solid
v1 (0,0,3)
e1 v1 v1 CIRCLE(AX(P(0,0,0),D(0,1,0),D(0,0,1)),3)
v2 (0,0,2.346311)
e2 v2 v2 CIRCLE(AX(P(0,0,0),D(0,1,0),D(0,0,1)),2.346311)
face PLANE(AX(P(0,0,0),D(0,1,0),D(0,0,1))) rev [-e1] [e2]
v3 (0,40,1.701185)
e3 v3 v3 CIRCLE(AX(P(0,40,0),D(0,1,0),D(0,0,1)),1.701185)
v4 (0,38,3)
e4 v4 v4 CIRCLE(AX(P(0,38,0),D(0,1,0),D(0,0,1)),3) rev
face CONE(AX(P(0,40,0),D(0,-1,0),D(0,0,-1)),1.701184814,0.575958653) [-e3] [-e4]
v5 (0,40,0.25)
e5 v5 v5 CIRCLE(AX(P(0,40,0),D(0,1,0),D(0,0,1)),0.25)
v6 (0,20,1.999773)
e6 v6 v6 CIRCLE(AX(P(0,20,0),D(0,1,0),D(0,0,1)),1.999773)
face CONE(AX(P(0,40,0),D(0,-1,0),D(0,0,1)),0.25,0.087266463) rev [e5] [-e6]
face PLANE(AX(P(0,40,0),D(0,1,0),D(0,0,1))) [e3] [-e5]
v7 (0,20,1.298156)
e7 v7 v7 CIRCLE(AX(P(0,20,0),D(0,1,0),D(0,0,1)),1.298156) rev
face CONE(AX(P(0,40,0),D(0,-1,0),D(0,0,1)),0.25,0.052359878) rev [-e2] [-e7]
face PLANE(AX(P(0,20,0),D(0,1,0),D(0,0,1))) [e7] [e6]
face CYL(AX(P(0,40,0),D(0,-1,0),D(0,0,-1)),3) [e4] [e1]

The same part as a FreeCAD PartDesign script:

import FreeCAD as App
import Part
import Sketcher

V = App.Vector


def edges_at(feature, points):
    """Names of the edges that pass closest to the given points."""
    edges = feature.Shape.Edges
    near = lambda p: min(range(len(edges)), key=lambda i: edges[i].distToShape(Part.Vertex(*p))[0])
    return sorted({f"Edge{near(p) + 1}" for p in points})

doc = App.newDocument("Part")
body = doc.addObject("PartDesign::Body", "Body")

sketch1 = body.newObject("Sketcher::SketchObject", "Sketch")
sketch1.AttachmentSupport = (doc.getObject("XZ_Plane"), [""])
sketch1.MapMode = "FlatFace"
sketch1.addGeometry(Part.Circle(V(0, 0, 0), V(0, 0, 1), 3), False)
sketch1.addConstraint([
    Sketcher.Constraint("Coincident", 0, 3, -1, 1),
    Sketcher.Constraint("Diameter", 0, 6.0),
])
pad1 = body.newObject("PartDesign::Pad", "Pad")
pad1.Profile = sketch1
pad1.Length = 40
pad1.Reversed = True

sketch2 = body.newObject("Sketcher::SketchObject", "Sketch001")
sketch2.AttachmentSupport = (doc.getObject("XZ_Plane"), [""])
sketch2.MapMode = "FlatFace"
sketch2.AttachmentOffset = App.Placement(V(0, 0, -40), App.Rotation())
sketch2.addGeometry(Part.Circle(V(0, 0, 0), V(0, 0, 1), 0.25), False)
sketch2.addConstraint([
    Sketcher.Constraint("Coincident", 0, 3, -1, 1),
    Sketcher.Constraint("Diameter", 0, 0.5),
])
pocket1 = body.newObject("PartDesign::Pocket", "Pocket")
pocket1.Profile = sketch2
pocket1.Length = 41
pocket1.Reversed = True
pocket1.TaperAngle = 3

sketch3 = body.newObject("Sketcher::SketchObject", "Sketch002")
sketch3.AttachmentSupport = (doc.getObject("XZ_Plane"), [""])
sketch3.MapMode = "FlatFace"
sketch3.AttachmentOffset = App.Placement(V(0, 0, -40), App.Rotation())
sketch3.addGeometry(Part.Circle(V(0, 0, 0), V(0, 0, 1), 0.25), False)
sketch3.addConstraint([
    Sketcher.Constraint("Coincident", 0, 3, -1, 1),
    Sketcher.Constraint("Diameter", 0, 0.5),
])
pocket2 = body.newObject("PartDesign::Pocket", "Pocket001")
pocket2.Profile = sketch3
pocket2.Length = 20
pocket2.Reversed = True
pocket2.TaperAngle = 5
doc.recompute()

chamfer = body.newObject("PartDesign::Chamfer", "Chamfer")
chamfer.Base = (pocket2, edges_at(pocket2, [(-3, 40, 0)]))
chamfer.ChamferType = "Two distances"
chamfer.Size = 2
chamfer.Size2 = 1.298815

doc.recompute()
